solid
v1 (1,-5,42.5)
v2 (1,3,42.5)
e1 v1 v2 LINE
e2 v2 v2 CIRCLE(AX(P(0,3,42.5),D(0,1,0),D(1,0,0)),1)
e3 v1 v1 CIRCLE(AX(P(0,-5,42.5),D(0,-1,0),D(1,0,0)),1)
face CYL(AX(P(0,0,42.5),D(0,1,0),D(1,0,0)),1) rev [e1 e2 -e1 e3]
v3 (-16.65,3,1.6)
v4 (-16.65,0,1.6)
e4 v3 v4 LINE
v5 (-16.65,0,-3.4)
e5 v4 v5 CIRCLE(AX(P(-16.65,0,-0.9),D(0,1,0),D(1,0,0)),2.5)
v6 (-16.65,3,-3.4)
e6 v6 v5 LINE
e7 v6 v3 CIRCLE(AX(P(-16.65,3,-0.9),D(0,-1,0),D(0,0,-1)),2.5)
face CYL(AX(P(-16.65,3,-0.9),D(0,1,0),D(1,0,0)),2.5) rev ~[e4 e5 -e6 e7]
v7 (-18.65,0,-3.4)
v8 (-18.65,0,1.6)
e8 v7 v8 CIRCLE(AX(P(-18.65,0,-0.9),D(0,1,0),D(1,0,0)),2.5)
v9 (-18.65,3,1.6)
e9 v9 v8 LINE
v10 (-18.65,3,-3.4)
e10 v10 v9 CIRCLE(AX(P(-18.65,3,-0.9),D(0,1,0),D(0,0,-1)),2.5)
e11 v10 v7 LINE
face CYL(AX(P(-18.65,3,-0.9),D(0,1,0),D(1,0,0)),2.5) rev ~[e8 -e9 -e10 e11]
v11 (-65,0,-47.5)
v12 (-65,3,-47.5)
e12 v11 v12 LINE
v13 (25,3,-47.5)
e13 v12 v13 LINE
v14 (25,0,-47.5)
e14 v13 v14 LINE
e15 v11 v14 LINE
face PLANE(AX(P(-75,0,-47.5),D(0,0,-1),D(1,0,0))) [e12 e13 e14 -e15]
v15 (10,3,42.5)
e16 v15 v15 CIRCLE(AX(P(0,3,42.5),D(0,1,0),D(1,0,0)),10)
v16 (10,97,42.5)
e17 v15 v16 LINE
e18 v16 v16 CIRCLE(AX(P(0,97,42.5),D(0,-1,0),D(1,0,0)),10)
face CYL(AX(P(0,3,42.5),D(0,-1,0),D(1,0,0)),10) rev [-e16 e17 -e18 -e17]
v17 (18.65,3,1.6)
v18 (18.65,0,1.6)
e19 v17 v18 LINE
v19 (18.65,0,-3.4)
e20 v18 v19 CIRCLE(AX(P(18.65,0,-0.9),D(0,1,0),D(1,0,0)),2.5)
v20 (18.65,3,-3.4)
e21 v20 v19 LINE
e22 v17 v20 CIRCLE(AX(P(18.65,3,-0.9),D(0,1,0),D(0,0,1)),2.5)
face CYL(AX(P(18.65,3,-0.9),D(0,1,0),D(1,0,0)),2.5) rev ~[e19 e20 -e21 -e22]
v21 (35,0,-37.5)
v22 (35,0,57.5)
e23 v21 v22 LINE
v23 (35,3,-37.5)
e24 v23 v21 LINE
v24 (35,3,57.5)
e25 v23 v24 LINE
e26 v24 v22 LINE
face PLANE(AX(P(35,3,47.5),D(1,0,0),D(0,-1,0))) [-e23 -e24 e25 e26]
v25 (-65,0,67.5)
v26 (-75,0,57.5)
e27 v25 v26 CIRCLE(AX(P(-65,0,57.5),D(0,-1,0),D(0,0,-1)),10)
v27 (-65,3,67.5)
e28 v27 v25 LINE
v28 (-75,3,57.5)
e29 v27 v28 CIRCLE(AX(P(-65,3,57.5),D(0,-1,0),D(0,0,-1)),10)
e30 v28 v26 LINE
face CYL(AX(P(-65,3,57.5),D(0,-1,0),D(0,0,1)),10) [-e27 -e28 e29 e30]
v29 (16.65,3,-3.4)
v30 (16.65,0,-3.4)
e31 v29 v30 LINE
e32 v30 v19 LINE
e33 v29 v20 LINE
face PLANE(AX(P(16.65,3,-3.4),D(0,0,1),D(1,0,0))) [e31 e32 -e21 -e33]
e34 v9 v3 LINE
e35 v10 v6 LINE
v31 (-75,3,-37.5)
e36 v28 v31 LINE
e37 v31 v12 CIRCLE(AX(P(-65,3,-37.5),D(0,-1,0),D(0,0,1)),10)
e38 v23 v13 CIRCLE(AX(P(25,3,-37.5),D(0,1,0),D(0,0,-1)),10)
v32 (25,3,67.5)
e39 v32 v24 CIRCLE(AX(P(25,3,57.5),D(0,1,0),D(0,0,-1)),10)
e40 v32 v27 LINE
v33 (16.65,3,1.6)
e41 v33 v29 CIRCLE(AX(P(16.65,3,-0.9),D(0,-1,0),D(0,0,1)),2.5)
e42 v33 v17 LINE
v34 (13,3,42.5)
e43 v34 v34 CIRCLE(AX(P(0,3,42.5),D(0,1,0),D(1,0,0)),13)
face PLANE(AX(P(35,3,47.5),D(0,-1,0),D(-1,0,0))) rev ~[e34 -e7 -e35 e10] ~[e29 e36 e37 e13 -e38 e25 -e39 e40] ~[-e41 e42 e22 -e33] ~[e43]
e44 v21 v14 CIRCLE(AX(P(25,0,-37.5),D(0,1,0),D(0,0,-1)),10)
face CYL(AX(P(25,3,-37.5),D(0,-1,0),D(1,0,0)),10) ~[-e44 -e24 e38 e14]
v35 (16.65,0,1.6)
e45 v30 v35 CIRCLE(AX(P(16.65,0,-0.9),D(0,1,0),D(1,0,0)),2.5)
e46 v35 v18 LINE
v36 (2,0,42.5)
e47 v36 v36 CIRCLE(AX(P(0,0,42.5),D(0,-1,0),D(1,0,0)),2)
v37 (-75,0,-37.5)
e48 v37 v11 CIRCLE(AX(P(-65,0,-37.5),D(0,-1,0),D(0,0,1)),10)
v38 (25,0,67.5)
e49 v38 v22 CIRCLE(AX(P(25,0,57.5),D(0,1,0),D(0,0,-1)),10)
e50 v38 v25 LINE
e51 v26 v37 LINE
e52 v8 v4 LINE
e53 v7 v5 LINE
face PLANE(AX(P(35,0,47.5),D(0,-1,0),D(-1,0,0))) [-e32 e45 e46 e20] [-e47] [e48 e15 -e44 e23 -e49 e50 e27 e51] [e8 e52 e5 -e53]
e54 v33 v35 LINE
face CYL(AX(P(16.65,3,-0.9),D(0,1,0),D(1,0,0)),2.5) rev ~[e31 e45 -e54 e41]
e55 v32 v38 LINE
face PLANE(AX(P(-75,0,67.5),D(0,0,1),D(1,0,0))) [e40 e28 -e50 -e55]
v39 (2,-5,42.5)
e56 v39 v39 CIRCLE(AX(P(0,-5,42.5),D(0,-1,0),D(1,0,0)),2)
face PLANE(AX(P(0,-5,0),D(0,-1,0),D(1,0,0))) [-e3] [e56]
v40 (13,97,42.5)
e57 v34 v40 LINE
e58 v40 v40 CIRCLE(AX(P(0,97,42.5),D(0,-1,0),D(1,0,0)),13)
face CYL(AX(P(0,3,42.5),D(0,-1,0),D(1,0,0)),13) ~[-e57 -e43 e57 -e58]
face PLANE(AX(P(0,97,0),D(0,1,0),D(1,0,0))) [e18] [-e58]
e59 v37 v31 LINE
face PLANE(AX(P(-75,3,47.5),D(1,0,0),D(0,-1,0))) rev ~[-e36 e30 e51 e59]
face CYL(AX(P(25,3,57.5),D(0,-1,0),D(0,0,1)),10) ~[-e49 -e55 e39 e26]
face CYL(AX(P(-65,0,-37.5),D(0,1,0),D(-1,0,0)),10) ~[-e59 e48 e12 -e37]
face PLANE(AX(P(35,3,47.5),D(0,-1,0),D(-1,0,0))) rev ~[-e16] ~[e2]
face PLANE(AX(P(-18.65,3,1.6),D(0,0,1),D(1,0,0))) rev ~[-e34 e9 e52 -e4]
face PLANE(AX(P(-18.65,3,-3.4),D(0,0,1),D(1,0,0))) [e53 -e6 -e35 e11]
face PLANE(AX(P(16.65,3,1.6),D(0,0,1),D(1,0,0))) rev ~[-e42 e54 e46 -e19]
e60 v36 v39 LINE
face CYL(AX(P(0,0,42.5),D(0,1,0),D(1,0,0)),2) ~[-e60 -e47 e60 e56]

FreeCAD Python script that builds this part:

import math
import FreeCAD as App
import Part
import Sketcher
from FreeCAD import Vector
Q = App.Units.Quantity


def edges_at(feature, points):
    """Names of the edges that pass closest to the given points."""
    edges = feature.Shape.Edges
    near = lambda p: min(range(len(edges)), key=lambda i: edges[i].distToShape(Part.Vertex(*p))[0])
    return sorted({f"Edge{near(p) + 1}" for p in points})


def add_polygon(sketch, points):
    """Adds a closed chain of lines whose ends are joined by coincident constraints."""
    first, n = sketch.GeometryCount, len(points)
    for a, b in zip(points, points[1:] + points[:1]):
        sketch.addGeometry(Part.LineSegment(App.Vector(*a, 0), App.Vector(*b, 0)), False)
    for i in range(n):
        sketch.addConstraint(Sketcher.Constraint("Coincident", first + i, 2, first + (i + 1) % n, 1))

doc = App.newDocument("Part")
params = doc.addObject("Spreadsheet::Sheet", "Params")
for row, (alias, value) in enumerate([
    ("sketch1_width", "150 mm"),
    ("sketch1_height", "95 mm"),
    ("pad1_length", "3 mm"),
    ("sketch2_radius", "2.5 mm"),
    ("sketch2_width", "2 mm"),
    ("sketch3_width", "40 mm"),
    ("sketch3_height", "95 mm"),
    ("sketch4_width", "110 mm"),
    ("sketch4_height", "3 mm"),
    ("pad2_length", "20 mm"),
    ("sketch5_diameter", "26 mm"),
    ("sketch5_diameter2", "20 mm"),
    ("pad3_length", "94 mm"),
    ("sketch6_diameter", "2 mm"),
    ("sketch7_diameter", "4 mm"),
    ("sketch7_diameter2", "2 mm"),
    ("pad4_length", "5 mm"),
    ("fillet_radius", "10 mm"),
], start=1):
    params.set(f"A{row}", alias)
    params.set(f"B{row}", "=" + value)
    params.setAlias(f"B{row}", alias)

body = doc.addObject("PartDesign::Body", "Body")

# Sketch on XZ plane
sketch1 = body.newObject("Sketcher::SketchObject", "Sketch")
sketch1.AttachmentSupport = (doc.getObject("XZ_Plane"), [""])
sketch1.MapMode = "FlatFace"
add_polygon(sketch1, [(-75, 48), (75, 48), (75, -48), (-75, -48)])  # lines 0-3
sketch1.addConstraint(Sketcher.Constraint("Horizontal", 0))
sketch1.addConstraint(Sketcher.Constraint("Vertical", 1))
sketch1.addConstraint(Sketcher.Constraint("Horizontal", 2))
sketch1.addConstraint(Sketcher.Constraint("Vertical", 3))
sketch1.addConstraint(Sketcher.Constraint("Symmetric", 0, 2, 2, 2, -1, 1))
sketch1.addConstraint(Sketcher.Constraint("DistanceX", 0, 1, 0, 2, Q("150 mm")))
sketch1.addConstraint(Sketcher.Constraint("DistanceY", 1, 2, 1, 1, Q("95 mm")))
sketch1.setExpression("Constraints[9]", "Params.sketch1_width")
sketch1.setExpression("Constraints[10]", "Params.sketch1_height")
pad1 = body.newObject("PartDesign::Pad", "Pad")
pad1.Profile = sketch1
pad1.setExpression("Length", "Params.pad1_length")
pad1.Reversed = True

# Sketch on XZ plane
sketch2 = body.newObject("Sketcher::SketchObject", "Sketch001")
sketch2.AttachmentSupport = (doc.getObject("XZ_Plane"), [""])
sketch2.MapMode = "FlatFace"
sketch2.AttachmentOffset = App.Placement(Vector(0, 0, -3), App.Rotation())
sketch2.addGeometry(Part.ArcOfCircle(Part.Circle(Vector(-16.6, -0.9, 0), Vector(0, 0, 1), 2.5), math.radians(-90), math.radians(90)), False)
sketch2.addGeometry(Part.LineSegment(Vector(-16.6, -3.4, 0), Vector(-18.6, -3.4, 0)), False)
sketch2.addGeometry(Part.ArcOfCircle(Part.Circle(Vector(-18.6, -0.9, 0), Vector(0, 0, 1), 2.5), math.radians(90), math.radians(270)), False)
sketch2.addGeometry(Part.LineSegment(Vector(-18.6, 1.6, 0), Vector(-16.6, 1.6, 0)), False)
sketch2.addGeometry(Part.ArcOfCircle(Part.Circle(Vector(16.6, -0.9, 0), Vector(0, 0, 1), 2.5), math.radians(90), math.radians(270)), False)
sketch2.addGeometry(Part.LineSegment(Vector(16.6, 1.6, 0), Vector(18.6, 1.6, 0)), False)
sketch2.addGeometry(Part.ArcOfCircle(Part.Circle(Vector(18.6, -0.9, 0), Vector(0, 0, 1), 2.5), math.radians(-90), math.radians(90)), False)
sketch2.addGeometry(Part.LineSegment(Vector(18.6, -3.4, 0), Vector(16.6, -3.4, 0)), False)
sketch2.addConstraint(Sketcher.Constraint("Tangent", 0, 1, 1, 1))
sketch2.addConstraint(Sketcher.Constraint("Tangent", 1, 2, 2, 2))
sketch2.addConstraint(Sketcher.Constraint("Tangent", 2, 1, 3, 1))
sketch2.addConstraint(Sketcher.Constraint("Tangent", 3, 2, 0, 2))
sketch2.addConstraint(Sketcher.Constraint("Tangent", 4, 1, 5, 1))
sketch2.addConstraint(Sketcher.Constraint("Tangent", 5, 2, 6, 2))
sketch2.addConstraint(Sketcher.Constraint("Tangent", 6, 1, 7, 1))
sketch2.addConstraint(Sketcher.Constraint("Tangent", 7, 2, 4, 2))
sketch2.addConstraint(Sketcher.Constraint("Horizontal", 1))
sketch2.addConstraint(Sketcher.Constraint("Horizontal", 3))
sketch2.addConstraint(Sketcher.Constraint("Horizontal", 5))
sketch2.addConstraint(Sketcher.Constraint("Horizontal", 7))
sketch2.addConstraint(Sketcher.Constraint("Equal", 2, 4))
sketch2.addConstraint(Sketcher.Constraint("Symmetric", 0, 3, 4, 3, -2))
sketch2.addConstraint(Sketcher.Constraint("Equal", 3, 5))
sketch2.addConstraint(Sketcher.Constraint("Radius", 0, Q("2.5 mm")))
sketch2.addConstraint(Sketcher.Constraint("DistanceX", 1, 2, 1, 1, Q("2 mm")))
sketch2.addConstraint(Sketcher.Constraint("DistanceX", 2, 3, 6, 3, Q("37.3 mm")))
sketch2.addConstraint(Sketcher.Constraint("DistanceY", 0, 3, -1, 1, Q("0.9 mm")))
sketch2.setExpression("Constraints[15]", "Params.sketch2_radius")
sketch2.setExpression("Constraints[16]", "Params.sketch2_width")
pocket1 = body.newObject("PartDesign::Pocket", "Pocket")
pocket1.Profile = sketch2
pocket1.Type = "ThroughAll"
pocket1.Reversed = True

# Sketch on XZ plane
sketch3 = body.newObject("Sketcher::SketchObject", "Sketch002")
sketch3.AttachmentSupport = (doc.getObject("XZ_Plane"), [""])
sketch3.MapMode = "FlatFace"
sketch3.AttachmentOffset = App.Placement(Vector(0, 0, -3), App.Rotation())
add_polygon(sketch3, [(75, 48), (75, -48), (35, -48), (35, 48)])  # lines 0-3
sketch3.addConstraint(Sketcher.Constraint("Vertical", 0))
sketch3.addConstraint(Sketcher.Constraint("Horizontal", 1))
sketch3.addConstraint(Sketcher.Constraint("Vertical", 2))
sketch3.addConstraint(Sketcher.Constraint("Horizontal", 3))
sketch3.addConstraint(Sketcher.Constraint("DistanceX", 1, 2, 1, 1, Q("40 mm")))
sketch3.addConstraint(Sketcher.Constraint("DistanceY", 0, 2, 0, 1, Q("95 mm")))
sketch3.addConstraint(Sketcher.Constraint("DistanceX", -1, 1, 0, 2, Q("75 mm")))
sketch3.addConstraint(Sketcher.Constraint("DistanceY", 0, 2, -1, 1, Q("47.5 mm")))
sketch3.setExpression("Constraints[8]", "Params.sketch3_width")
sketch3.setExpression("Constraints[9]", "Params.sketch3_height")
pocket2 = body.newObject("PartDesign::Pocket", "Pocket001")
pocket2.Profile = sketch3
pocket2.Type = "ThroughAll"
pocket2.Reversed = True

# Sketch on XY plane
sketch4 = body.newObject("Sketcher::SketchObject", "Sketch003")
sketch4.AttachmentSupport = (doc.getObject("XY_Plane"), [""])
sketch4.MapMode = "FlatFace"
sketch4.AttachmentOffset = App.Placement(Vector(0, 0, 47.5), App.Rotation())
add_polygon(sketch4, [(-75, 0), (35, 0), (35, 3), (-75, 3)])  # lines 0-3
sketch4.addConstraint(Sketcher.Constraint("Horizontal", 0))
sketch4.addConstraint(Sketcher.Constraint("Vertical", 1))
sketch4.addConstraint(Sketcher.Constraint("Horizontal", 2))
sketch4.addConstraint(Sketcher.Constraint("Vertical", 3))
sketch4.addConstraint(Sketcher.Constraint("PointOnObject", 0, 2, -1))
sketch4.addConstraint(Sketcher.Constraint("DistanceX", 0, 1, 0, 2, Q("110 mm")))
sketch4.addConstraint(Sketcher.Constraint("DistanceY", 1, 1, 1, 2, Q("3 mm")))
sketch4.addConstraint(Sketcher.Constraint("DistanceX", -1, 1, 0, 2, Q("35 mm")))
sketch4.setExpression("Constraints[9]", "Params.sketch4_width")
sketch4.setExpression("Constraints[10]", "Params.sketch4_height")
pad2 = body.newObject("PartDesign::Pad", "Pad001")
pad2.Profile = sketch4
pad2.setExpression("Length", "Params.pad2_length")

# Sketch on XZ plane
sketch5 = body.newObject("Sketcher::SketchObject", "Sketch004")
sketch5.AttachmentSupport = (doc.getObject("XZ_Plane"), [""])
sketch5.MapMode = "FlatFace"
sketch5.AttachmentOffset = App.Placement(Vector(0, 0, -3), App.Rotation())
sketch5.addGeometry(Part.Circle(Vector(0, 42, 0), Vector(0, 0, 1), 13), False)
sketch5.addGeometry(Part.Circle(Vector(0, 42, 0), Vector(0, 0, 1), 10), False)
sketch5.addConstraint(Sketcher.Constraint("Coincident", 1, 3, 0, 3))
sketch5.addConstraint(Sketcher.Constraint("PointOnObject", 0, 3, -2))
sketch5.addConstraint(Sketcher.Constraint("Diameter", 0, Q("26 mm")))
sketch5.addConstraint(Sketcher.Constraint("Diameter", 1, Q("20 mm")))
sketch5.addConstraint(Sketcher.Constraint("DistanceY", -1, 1, 0, 3, Q("42.5 mm")))
sketch5.setExpression("Constraints[2]", "Params.sketch5_diameter")
sketch5.setExpression("Constraints[3]", "Params.sketch5_diameter2")
pad3 = body.newObject("PartDesign::Pad", "Pad002")
pad3.Profile = sketch5
pad3.setExpression("Length", "Params.pad3_length")
pad3.Reversed = True

# Sketch on XZ plane
sketch6 = body.newObject("Sketcher::SketchObject", "Sketch005")
sketch6.AttachmentSupport = (doc.getObject("XZ_Plane"), [""])
sketch6.MapMode = "FlatFace"
sketch6.AttachmentOffset = App.Placement(Vector(0, 0, -3), App.Rotation())
sketch6.addGeometry(Part.Circle(Vector(0, 42.5, 0), Vector(0, 0, 1), 1), False)
sketch6.addConstraint(Sketcher.Constraint("PointOnObject", 0, 3, -2))
sketch6.addConstraint(Sketcher.Constraint("Diameter", 0, Q("2 mm")))
sketch6.addConstraint(Sketcher.Constraint("DistanceY", -1, 1, 0, 3, Q("42.5 mm")))
sketch6.setExpression("Constraints[1]", "Params.sketch6_diameter")
pocket3 = body.newObject("PartDesign::Pocket", "Pocket002")
pocket3.Profile = sketch6
pocket3.Type = "ThroughAll"
pocket3.Reversed = True

# Sketch on XZ plane
sketch7 = body.newObject("Sketcher::SketchObject", "Sketch006")
sketch7.AttachmentSupport = (doc.getObject("XZ_Plane"), [""])
sketch7.MapMode = "FlatFace"
sketch7.addGeometry(Part.Circle(Vector(0, 42.5, 0), Vector(0, 0, 1), 2), False)
sketch7.addGeometry(Part.Circle(Vector(0, 42.5, 0), Vector(0, 0, 1), 1), False)
sketch7.addConstraint(Sketcher.Constraint("Coincident", 1, 3, 0, 3))
sketch7.addConstraint(Sketcher.Constraint("PointOnObject", 0, 3, -2))
sketch7.addConstraint(Sketcher.Constraint("Diameter", 0, Q("4 mm")))
sketch7.addConstraint(Sketcher.Constraint("Diameter", 1, Q("2 mm")))
sketch7.addConstraint(Sketcher.Constraint("DistanceY", -1, 1, 0, 3, Q("42.5 mm")))
sketch7.setExpression("Constraints[2]", "Params.sketch7_diameter")
sketch7.setExpression("Constraints[3]", "Params.sketch7_diameter2")
pad4 = body.newObject("PartDesign::Pad", "Pad003")
pad4.Profile = sketch7
pad4.setExpression("Length", "Params.pad4_length")
doc.recompute()

fillet = body.newObject("PartDesign::Fillet", "Fillet")
fillet.Base = (pad4, edges_at(pad4, [
    (35, 1.5, 67.5),
    (35, 1.5, -47.5),
    (-75, 1.5, 67.5),
    (-75, 1.5, -47.5),
]))
fillet.setExpression("Radius", "Params.fillet_radius")

doc.recompute()
